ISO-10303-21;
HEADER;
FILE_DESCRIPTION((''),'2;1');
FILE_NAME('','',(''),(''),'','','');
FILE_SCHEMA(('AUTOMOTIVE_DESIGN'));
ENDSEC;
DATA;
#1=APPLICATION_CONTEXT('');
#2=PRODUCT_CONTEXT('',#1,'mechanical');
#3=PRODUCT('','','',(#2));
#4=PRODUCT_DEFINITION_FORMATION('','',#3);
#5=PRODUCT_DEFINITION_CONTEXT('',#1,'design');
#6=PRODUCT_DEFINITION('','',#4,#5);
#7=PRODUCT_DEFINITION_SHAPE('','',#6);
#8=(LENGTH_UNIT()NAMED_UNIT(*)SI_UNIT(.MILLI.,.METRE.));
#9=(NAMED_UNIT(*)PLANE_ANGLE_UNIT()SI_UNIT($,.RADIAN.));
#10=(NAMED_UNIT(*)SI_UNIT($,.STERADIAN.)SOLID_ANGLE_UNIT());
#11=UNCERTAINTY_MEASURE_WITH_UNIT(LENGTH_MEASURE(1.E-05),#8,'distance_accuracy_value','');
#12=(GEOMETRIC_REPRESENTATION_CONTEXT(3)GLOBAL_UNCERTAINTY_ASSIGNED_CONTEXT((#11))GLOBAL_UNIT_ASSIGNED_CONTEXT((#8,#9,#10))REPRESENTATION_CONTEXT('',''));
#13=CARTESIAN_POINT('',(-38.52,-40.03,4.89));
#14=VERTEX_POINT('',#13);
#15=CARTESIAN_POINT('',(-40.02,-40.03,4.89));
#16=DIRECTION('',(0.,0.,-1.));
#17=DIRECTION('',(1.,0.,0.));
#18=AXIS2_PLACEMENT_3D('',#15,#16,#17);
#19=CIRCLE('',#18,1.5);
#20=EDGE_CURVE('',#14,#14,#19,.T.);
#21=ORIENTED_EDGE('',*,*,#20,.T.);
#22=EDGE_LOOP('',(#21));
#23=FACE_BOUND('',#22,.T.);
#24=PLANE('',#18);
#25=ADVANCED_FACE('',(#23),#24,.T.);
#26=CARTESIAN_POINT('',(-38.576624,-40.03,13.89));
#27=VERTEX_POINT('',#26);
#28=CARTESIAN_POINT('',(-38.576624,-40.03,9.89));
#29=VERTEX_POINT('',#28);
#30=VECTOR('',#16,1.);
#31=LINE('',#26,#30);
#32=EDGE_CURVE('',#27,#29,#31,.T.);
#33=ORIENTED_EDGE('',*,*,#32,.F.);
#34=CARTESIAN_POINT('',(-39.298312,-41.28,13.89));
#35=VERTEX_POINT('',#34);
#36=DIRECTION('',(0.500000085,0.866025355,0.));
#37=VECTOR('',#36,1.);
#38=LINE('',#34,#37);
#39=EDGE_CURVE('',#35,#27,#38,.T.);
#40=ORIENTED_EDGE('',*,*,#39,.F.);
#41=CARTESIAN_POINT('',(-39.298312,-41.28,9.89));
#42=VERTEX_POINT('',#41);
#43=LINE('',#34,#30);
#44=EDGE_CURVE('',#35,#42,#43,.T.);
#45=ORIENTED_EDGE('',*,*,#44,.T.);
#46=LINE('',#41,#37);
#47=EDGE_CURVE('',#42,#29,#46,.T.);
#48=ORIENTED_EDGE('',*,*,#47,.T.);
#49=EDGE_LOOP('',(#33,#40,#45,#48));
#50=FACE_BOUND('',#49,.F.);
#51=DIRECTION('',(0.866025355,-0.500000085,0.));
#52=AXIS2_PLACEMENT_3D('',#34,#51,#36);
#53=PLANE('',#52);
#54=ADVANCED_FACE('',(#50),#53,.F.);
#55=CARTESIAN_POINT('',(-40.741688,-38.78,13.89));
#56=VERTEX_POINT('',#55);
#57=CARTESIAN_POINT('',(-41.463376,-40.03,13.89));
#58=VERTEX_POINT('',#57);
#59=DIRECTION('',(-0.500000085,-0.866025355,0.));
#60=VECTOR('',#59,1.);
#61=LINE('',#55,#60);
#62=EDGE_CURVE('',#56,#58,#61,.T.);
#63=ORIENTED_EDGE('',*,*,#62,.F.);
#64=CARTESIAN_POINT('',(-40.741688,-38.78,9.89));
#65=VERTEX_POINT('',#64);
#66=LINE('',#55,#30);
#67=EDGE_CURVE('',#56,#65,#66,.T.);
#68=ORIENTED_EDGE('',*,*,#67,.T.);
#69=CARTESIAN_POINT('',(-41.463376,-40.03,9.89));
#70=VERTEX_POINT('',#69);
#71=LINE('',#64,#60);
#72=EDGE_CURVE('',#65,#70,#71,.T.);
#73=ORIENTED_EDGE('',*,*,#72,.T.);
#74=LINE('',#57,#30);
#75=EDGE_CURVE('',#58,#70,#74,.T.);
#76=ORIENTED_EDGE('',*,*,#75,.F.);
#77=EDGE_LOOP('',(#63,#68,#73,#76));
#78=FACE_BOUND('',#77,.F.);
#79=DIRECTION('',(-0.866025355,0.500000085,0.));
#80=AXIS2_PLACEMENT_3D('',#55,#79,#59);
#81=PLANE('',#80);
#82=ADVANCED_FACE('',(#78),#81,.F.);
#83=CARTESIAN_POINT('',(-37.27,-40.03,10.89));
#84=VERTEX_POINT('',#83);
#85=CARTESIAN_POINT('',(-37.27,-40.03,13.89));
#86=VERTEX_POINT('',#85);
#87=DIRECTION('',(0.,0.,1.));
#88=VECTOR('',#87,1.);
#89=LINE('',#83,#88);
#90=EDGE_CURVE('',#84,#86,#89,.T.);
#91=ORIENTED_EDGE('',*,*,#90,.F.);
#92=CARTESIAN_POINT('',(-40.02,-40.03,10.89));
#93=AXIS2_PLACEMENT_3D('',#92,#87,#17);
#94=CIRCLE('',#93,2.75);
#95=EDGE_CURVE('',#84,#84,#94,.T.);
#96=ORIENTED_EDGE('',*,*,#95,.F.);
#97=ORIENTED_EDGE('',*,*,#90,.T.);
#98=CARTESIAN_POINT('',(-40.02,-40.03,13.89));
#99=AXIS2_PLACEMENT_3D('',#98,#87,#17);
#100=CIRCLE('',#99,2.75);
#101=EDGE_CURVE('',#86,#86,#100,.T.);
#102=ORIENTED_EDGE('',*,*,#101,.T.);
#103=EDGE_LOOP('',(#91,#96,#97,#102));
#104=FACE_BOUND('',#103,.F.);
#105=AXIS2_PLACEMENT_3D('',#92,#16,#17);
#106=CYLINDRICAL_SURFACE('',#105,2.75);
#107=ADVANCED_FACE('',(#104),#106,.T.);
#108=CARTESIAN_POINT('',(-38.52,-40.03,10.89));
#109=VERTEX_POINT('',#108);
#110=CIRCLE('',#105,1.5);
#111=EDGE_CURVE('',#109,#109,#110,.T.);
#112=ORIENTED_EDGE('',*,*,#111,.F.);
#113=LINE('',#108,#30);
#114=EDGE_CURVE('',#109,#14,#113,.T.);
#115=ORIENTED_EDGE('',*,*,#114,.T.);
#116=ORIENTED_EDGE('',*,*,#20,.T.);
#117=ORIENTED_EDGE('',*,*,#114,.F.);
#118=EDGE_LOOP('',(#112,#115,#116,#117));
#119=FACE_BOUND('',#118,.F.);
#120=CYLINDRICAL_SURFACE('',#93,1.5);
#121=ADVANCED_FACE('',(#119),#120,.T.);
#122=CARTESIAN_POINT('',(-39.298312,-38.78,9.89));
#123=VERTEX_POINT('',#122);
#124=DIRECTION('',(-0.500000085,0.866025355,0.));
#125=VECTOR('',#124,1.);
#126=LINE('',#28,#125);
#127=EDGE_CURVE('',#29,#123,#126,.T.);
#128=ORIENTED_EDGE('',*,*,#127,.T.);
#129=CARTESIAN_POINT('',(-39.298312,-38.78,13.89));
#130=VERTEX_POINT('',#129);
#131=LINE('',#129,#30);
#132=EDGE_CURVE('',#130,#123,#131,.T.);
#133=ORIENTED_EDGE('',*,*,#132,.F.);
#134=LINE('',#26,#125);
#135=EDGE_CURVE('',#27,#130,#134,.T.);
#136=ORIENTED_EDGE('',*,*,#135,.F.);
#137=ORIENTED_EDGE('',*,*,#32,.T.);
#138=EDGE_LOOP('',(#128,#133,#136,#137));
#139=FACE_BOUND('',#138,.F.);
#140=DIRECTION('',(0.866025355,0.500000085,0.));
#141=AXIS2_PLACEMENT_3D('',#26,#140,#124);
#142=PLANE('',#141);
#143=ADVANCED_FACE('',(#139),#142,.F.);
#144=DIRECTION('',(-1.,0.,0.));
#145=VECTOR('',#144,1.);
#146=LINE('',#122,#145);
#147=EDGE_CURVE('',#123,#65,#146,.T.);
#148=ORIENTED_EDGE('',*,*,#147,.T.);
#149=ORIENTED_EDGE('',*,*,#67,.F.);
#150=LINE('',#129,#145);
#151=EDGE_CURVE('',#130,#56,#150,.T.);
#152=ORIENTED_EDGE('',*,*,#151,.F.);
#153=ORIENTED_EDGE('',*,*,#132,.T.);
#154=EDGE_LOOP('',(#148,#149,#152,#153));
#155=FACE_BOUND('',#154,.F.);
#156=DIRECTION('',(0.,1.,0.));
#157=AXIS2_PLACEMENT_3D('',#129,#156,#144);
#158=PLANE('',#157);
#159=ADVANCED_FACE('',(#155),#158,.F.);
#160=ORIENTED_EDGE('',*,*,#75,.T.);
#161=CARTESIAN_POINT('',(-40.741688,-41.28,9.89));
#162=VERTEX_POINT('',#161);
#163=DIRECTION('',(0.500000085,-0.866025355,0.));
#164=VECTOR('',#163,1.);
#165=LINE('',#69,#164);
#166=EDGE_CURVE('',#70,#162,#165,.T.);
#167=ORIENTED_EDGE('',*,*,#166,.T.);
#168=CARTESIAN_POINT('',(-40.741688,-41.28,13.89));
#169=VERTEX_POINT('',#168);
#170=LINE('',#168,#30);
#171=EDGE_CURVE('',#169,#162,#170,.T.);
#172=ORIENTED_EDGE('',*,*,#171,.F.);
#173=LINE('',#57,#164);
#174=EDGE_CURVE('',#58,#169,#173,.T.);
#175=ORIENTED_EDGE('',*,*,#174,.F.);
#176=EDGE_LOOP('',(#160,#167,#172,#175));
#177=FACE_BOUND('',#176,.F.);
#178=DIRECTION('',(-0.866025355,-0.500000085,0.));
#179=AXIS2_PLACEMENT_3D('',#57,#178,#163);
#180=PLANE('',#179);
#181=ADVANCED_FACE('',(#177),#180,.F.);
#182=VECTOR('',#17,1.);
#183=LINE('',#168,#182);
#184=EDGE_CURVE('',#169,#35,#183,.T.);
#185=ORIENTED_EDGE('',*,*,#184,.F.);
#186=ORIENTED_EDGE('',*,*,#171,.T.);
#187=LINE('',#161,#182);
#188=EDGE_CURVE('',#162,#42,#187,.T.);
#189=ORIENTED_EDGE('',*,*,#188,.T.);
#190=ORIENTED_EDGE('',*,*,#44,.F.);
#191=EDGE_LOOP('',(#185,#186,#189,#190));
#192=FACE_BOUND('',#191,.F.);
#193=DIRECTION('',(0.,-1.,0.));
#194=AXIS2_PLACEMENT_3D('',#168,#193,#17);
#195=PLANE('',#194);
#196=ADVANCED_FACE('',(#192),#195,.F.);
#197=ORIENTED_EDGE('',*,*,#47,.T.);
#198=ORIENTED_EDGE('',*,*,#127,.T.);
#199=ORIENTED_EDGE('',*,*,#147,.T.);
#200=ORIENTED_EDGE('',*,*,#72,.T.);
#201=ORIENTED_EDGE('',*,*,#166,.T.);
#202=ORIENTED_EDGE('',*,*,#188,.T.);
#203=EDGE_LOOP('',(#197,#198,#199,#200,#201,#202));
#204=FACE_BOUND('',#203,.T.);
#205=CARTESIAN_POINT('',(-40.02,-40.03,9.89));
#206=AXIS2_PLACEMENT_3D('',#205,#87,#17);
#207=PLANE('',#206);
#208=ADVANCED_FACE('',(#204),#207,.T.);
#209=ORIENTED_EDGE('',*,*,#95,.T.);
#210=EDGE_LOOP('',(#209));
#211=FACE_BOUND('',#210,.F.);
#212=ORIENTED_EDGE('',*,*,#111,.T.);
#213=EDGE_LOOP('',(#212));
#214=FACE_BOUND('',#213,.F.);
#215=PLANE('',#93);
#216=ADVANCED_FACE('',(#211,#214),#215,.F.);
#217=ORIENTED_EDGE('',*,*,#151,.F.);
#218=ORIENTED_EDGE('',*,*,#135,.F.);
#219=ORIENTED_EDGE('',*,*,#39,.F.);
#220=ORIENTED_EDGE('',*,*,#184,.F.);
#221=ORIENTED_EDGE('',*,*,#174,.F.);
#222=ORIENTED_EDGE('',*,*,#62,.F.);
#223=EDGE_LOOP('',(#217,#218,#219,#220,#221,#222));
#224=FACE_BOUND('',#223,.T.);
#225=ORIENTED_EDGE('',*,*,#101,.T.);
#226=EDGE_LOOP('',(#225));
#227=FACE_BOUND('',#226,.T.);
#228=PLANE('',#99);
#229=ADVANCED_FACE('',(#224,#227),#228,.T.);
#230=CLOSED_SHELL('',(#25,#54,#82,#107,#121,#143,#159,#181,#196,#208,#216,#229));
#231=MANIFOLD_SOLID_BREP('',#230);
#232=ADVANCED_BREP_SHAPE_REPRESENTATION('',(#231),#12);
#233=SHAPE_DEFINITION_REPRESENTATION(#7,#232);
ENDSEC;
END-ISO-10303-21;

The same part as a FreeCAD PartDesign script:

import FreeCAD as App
import Part
import Sketcher

V = App.Vector
Q = App.Units.Quantity


def add_polygon(sketch, points):
    """Adds a closed chain of lines whose ends are joined by coincident constraints."""
    first, n = sketch.GeometryCount, len(points)
    for a, b in zip(points, points[1:] + points[:1]):
        sketch.addGeometry(Part.LineSegment(App.Vector(*a, 0), App.Vector(*b, 0)), False)
    for i in range(n):
        sketch.addConstraint(Sketcher.Constraint("Coincident", first + i, 2, first + (i + 1) % n, 1))

doc = App.newDocument("Part")
params = doc.addObject("Spreadsheet::Sheet", "Params")
for row, (alias, value) in enumerate([
    ("sketch1_diameter", "5.5 mm"),
    ("pad1_length", "3 mm"),
    ("sketch2_diameter", "3 mm"),
    ("pad2_length", "6 mm"),
    ("pocket1_length", "4 mm"),
], start=1):
    params.set(f"A{row}", alias)
    params.set(f"B{row}", "=" + value)
    params.setAlias(f"B{row}", alias)

body = doc.addObject("PartDesign::Body", "Body")

# Sketch on XY plane
sketch1 = doc.addObject("Sketcher::SketchObject", "Sketch")
body.addObject(sketch1)
sketch1.AttachmentSupport = (doc.XY_Plane, [""])
sketch1.MapMode = "FlatFace"
sketch1.addGeometry(Part.Circle(V(0, 0, 0), V(0, 0, 1), 2.75), False)
sketch1.addConstraint([
    Sketcher.Constraint("Coincident", 0, 3, -1, 1),
    Sketcher.Constraint("Diameter", 0, 5.5),
])
sketch1.setExpression("Constraints[1]", "Params.sketch1_diameter")
pad1 = doc.addObject("PartDesign::Pad", "Pad")
body.addObject(pad1)
pad1.Profile = sketch1
pad1.setExpression("Length", "Params.pad1_length")

# Sketch on XY plane
sketch2 = doc.addObject("Sketcher::SketchObject", "Sketch001")
body.addObject(sketch2)
sketch2.AttachmentSupport = (doc.XY_Plane, [""])
sketch2.MapMode = "FlatFace"
sketch2.addGeometry(Part.Circle(V(0, 0, 0), V(0, 0, 1), 1.5), False)
sketch2.addConstraint([
    Sketcher.Constraint("Coincident", 0, 3, -1, 1),
    Sketcher.Constraint("Diameter", 0, 3.0),
])
sketch2.setExpression("Constraints[1]", "Params.sketch2_diameter")
pad2 = doc.addObject("PartDesign::Pad", "Pad001")
body.addObject(pad2)
pad2.Profile = sketch2
pad2.setExpression("Length", "Params.pad2_length")
pad2.Reversed = True

# Sketch on XY plane
sketch3 = doc.addObject("Sketcher::SketchObject", "Sketch002")
body.addObject(sketch3)
sketch3.AttachmentSupport = (doc.XY_Plane, [""])
sketch3.MapMode = "FlatFace"
sketch3.AttachmentOffset = App.Placement(V(0, 0, 3), App.Rotation())
add_polygon(sketch3, [(0.721688, -1.25), (1.443376, 0), (0.721688, 1.25), (-0.721688, 1.25), (-1.443376, 0), (-0.721688, -1.25)])  # lines 0-5
sketch3.addConstraint([
    Sketcher.Constraint("Horizontal", 2),
    Sketcher.Constraint("Horizontal", 5),
    Sketcher.Constraint("Symmetric", 0, 2, 3, 2, -1, 1),
    Sketcher.Constraint("Symmetric", 1, 2, 4, 2, -1, 1),
    Sketcher.Constraint("PointOnObject", 0, 2, -1),
    Sketcher.Constraint("Parallel", 0, 3),
    Sketcher.Constraint("Vertical", 2, 2, 4, 2),
    Sketcher.Constraint("Angle", 0, Q("59.999994 deg")),
    Sketcher.Constraint("DistanceY", 4, 2, 2, 2, 2.5),
    Sketcher.Constraint("DistanceX", 2, 2, 2, 1, 1.443376),
])
pocket1 = doc.addObject("PartDesign::Pocket", "Pocket")
body.addObject(pocket1)
pocket1.Profile = sketch3
pocket1.setExpression("Length", "Params.pocket1_length")
body2 = doc.addObject("PartDesign::Body", "Body001")
doc.recompute()

body.Placement = App.Placement(V(-40.02, -40.03, 10.89), App.Rotation(V(0, 0, 1), 0))
boolean = doc.addObject("PartDesign::Boolean", "Boolean")
body2.addObject(boolean)
boolean.Type = "Fuse"
boolean.addObjects([body])

doc.recompute()
